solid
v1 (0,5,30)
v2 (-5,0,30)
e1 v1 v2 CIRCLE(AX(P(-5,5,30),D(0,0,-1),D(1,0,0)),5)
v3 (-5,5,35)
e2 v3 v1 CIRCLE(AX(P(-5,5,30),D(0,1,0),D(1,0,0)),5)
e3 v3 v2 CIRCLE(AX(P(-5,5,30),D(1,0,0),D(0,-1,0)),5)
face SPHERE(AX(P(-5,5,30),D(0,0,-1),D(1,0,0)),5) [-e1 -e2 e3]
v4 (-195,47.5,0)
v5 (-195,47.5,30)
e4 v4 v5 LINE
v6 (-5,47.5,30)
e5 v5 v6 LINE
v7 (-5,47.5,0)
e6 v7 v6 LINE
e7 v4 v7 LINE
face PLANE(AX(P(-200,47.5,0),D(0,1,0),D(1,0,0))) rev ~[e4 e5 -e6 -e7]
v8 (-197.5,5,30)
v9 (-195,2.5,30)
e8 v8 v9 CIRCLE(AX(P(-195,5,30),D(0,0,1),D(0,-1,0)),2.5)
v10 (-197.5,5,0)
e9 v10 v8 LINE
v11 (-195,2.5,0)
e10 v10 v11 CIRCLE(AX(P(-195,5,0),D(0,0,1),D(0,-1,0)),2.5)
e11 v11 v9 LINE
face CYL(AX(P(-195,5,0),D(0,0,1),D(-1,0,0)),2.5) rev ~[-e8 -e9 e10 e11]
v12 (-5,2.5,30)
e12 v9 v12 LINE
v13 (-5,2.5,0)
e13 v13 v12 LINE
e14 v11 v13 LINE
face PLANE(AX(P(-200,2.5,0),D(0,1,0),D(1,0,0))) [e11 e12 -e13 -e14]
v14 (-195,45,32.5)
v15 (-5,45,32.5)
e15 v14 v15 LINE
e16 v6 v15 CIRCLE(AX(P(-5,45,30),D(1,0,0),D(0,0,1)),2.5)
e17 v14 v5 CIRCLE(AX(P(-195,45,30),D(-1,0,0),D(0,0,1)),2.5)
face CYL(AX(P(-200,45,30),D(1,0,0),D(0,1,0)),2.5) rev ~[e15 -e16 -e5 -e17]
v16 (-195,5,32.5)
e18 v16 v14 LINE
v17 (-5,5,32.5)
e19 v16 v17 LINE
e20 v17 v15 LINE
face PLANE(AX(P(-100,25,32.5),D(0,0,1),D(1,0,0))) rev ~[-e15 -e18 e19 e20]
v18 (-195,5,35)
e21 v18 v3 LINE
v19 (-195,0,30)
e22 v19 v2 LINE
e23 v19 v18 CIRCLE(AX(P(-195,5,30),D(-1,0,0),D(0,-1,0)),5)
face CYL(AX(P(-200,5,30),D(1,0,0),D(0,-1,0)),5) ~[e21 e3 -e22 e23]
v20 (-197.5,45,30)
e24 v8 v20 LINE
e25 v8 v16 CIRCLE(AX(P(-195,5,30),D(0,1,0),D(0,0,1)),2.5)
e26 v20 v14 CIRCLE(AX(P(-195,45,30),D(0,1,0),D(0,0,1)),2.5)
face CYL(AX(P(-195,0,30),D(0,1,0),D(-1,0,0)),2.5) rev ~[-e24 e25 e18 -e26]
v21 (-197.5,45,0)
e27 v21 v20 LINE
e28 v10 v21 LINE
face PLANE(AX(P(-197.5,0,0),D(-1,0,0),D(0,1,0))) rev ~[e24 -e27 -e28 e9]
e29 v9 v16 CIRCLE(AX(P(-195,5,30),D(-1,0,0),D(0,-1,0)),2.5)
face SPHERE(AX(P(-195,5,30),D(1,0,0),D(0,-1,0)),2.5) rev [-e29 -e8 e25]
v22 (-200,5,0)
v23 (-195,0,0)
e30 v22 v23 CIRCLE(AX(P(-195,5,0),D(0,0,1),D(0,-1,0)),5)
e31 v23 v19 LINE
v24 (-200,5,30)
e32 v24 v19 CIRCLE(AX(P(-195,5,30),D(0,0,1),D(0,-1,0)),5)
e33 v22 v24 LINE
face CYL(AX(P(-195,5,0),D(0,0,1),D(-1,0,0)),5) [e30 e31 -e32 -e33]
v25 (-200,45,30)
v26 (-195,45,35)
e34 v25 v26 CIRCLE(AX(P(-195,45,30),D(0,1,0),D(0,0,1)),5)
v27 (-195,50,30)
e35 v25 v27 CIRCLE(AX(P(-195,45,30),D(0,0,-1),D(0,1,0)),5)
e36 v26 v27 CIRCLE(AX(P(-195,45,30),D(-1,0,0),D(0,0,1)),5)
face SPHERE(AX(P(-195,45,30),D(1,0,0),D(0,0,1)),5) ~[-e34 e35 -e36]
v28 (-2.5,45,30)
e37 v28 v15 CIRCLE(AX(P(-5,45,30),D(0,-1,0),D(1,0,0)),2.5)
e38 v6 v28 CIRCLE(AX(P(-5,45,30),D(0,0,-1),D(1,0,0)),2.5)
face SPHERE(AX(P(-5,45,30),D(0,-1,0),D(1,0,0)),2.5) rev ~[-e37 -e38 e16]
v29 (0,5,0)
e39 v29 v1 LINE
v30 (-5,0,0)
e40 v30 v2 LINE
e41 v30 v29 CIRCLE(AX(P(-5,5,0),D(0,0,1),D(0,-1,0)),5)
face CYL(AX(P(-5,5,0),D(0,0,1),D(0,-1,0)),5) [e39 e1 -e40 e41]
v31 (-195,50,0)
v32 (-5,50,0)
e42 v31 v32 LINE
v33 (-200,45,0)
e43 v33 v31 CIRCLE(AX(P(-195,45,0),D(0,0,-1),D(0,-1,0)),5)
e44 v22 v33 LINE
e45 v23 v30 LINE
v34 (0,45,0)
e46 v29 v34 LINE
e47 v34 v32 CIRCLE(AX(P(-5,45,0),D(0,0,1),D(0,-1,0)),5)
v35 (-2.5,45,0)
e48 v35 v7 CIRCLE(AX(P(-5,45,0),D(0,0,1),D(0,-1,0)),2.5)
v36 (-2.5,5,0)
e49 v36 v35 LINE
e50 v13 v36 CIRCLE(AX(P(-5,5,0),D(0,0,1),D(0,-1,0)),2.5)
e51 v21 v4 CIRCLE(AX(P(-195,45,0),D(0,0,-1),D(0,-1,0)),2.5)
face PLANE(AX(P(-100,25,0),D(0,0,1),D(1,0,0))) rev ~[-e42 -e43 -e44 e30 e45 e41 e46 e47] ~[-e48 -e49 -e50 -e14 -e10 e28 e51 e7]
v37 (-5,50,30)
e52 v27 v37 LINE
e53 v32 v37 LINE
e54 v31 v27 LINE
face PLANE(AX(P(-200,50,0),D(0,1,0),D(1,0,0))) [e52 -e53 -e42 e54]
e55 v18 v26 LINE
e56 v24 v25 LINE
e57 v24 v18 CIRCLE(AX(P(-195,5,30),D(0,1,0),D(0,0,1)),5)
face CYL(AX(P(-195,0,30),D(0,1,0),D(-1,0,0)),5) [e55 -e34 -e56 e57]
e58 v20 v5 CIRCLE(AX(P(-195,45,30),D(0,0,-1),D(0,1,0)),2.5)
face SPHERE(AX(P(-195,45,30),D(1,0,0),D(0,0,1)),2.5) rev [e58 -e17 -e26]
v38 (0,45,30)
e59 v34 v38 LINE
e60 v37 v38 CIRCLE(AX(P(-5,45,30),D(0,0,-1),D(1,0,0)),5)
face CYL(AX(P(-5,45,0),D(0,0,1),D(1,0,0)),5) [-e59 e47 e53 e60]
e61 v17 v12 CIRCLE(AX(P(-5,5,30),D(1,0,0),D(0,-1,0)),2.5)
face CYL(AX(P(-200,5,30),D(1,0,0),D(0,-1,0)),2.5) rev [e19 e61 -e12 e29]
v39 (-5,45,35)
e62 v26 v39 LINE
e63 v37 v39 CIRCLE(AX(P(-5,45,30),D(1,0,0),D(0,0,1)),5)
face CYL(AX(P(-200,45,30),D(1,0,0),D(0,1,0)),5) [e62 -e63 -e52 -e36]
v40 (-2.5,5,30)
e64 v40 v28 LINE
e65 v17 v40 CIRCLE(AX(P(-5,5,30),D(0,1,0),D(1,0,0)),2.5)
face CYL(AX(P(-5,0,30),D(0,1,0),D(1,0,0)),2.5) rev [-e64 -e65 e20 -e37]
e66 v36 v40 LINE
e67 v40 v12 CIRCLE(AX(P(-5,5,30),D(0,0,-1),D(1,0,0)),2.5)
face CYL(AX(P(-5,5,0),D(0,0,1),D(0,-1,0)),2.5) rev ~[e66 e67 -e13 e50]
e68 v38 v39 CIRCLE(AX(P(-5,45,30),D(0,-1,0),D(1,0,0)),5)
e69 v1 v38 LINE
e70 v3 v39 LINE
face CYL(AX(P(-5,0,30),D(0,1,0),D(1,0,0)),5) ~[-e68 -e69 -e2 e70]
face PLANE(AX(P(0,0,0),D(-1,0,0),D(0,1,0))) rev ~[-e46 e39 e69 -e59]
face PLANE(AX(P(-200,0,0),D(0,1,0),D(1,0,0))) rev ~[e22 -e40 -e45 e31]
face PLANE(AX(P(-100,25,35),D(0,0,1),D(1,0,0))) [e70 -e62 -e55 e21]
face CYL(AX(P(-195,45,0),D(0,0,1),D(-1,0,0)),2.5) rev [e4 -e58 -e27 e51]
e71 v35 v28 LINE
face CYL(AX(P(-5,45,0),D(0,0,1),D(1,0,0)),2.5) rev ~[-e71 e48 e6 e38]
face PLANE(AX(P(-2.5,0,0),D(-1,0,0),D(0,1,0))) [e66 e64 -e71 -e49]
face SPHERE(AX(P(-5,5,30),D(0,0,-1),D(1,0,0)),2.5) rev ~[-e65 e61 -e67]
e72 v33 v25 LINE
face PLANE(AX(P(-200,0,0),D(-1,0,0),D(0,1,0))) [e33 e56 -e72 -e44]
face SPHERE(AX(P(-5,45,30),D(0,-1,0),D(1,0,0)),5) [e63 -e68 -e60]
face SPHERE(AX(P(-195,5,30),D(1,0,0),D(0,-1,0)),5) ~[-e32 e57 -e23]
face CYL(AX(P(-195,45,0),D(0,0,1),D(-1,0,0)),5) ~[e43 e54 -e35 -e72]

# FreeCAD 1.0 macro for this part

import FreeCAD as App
import Part
import Sketcher

V = App.Vector


def edges_at(feature, points):
    """Names of the edges that pass closest to the given points."""
    edges = feature.Shape.Edges
    near = lambda p: min(range(len(edges)), key=lambda i: edges[i].distToShape(Part.Vertex(*p))[0])
    return sorted({f"Edge{near(p) + 1}" for p in points})


def faces_at(feature, points):
    """Names of the faces that lie closest to the given points."""
    faces = feature.Shape.Faces
    near = lambda p: min(range(len(faces)), key=lambda i: faces[i].distToShape(Part.Vertex(*p))[0])
    return sorted({f"Face{near(p) + 1}" for p in points})

doc = App.newDocument("Part")
body = doc.addObject("PartDesign::Body", "Body")

# Sketch on XY plane
sketch1 = body.newObject("Sketcher::SketchObject", "Sketch")
sketch1.AttachmentSupport = (doc.getObject("XY_Plane"), [""])
sketch1.MapMode = "FlatFace"
sketch1.addGeometry([
    Part.LineSegment(V(-200, 50, 0), V(-200, 0, 0)),
    Part.LineSegment(V(-200, 0, 0), V(0, 0, 0)),
    Part.LineSegment(V(0, 0, 0), V(0, 50, 0)),
    Part.LineSegment(V(0, 50, 0), V(-200, 50, 0)),
], False)
sketch1.addConstraint([
    Sketcher.Constraint("Coincident", 0, 2, 1, 1),
    Sketcher.Constraint("Coincident", 1, 2, 2, 1),
    Sketcher.Constraint("Coincident", 2, 2, 3, 1),
    Sketcher.Constraint("Coincident", 3, 2, 0, 1),
    Sketcher.Constraint("Vertical", 0),
    Sketcher.Constraint("Horizontal", 1),
    Sketcher.Constraint("Vertical", 2),
    Sketcher.Constraint("Horizontal", 3),
    Sketcher.Constraint("Coincident", 1, 2, -1, 1),
    Sketcher.Constraint("DistanceX", 1, 1, 1, 2, 200.0),
    Sketcher.Constraint("DistanceY", 0, 2, 0, 1, 50.0),
])
pad1 = body.newObject("PartDesign::Pad", "Pad")
pad1.Profile = sketch1
pad1.Length = 35
doc.recompute()

fillet = body.newObject("PartDesign::Fillet", "Fillet")
fillet.Base = (pad1, edges_at(pad1, [
    (0, 0, 17.5),
    (0, 25, 35),
    (0, 50, 17.5),
    (-100, 50, 35),
    (-100, 0, 35),
    (-200, 0, 17.5),
    (-200, 25, 35),
    (-200, 50, 17.5),
]))
fillet.Radius = 5
doc.recompute()

thickness = body.newObject("PartDesign::Thickness", "Thickness")
thickness.Base = (fillet, faces_at(fillet, [(-100, 25, 0)]))
thickness.Value = 2.5
thickness.Reversed = True
thickness.Join = "Arc"

doc.recompute()
